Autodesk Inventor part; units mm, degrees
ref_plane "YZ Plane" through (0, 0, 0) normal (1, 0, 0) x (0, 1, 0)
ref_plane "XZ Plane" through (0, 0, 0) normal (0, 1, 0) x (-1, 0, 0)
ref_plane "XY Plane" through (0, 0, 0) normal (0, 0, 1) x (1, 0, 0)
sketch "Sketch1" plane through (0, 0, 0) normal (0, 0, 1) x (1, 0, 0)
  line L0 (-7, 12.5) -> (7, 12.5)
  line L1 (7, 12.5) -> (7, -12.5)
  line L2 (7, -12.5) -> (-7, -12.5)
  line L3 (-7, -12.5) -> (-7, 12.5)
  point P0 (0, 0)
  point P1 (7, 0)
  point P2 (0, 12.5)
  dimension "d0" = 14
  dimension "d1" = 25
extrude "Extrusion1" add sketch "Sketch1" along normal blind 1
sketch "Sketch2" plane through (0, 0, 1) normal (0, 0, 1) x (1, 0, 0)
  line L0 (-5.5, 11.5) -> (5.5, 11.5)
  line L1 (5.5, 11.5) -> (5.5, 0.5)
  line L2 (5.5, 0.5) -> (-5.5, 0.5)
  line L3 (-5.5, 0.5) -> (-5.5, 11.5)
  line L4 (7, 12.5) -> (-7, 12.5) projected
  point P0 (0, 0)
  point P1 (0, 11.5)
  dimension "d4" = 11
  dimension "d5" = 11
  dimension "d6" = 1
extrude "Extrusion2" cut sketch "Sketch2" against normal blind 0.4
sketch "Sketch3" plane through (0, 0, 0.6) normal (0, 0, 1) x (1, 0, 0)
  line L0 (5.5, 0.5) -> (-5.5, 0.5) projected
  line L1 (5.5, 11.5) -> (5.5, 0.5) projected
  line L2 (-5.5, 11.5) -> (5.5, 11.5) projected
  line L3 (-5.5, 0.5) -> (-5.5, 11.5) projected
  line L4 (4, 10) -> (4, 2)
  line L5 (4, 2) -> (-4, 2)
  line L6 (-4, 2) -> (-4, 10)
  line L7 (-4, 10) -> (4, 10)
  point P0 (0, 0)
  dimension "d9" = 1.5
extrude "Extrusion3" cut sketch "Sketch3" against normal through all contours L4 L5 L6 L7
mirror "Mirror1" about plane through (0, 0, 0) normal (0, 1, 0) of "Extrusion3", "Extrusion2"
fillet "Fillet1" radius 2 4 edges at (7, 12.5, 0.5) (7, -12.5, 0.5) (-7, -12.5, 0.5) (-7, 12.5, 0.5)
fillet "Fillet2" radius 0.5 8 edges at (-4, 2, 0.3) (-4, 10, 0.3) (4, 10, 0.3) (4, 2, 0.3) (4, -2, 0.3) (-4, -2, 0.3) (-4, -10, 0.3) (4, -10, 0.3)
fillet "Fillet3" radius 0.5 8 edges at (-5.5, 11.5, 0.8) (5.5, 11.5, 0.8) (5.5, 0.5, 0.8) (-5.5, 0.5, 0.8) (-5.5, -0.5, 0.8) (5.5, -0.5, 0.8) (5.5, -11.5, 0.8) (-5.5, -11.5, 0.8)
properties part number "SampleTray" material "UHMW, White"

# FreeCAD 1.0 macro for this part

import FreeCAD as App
import Part
import Sketcher
from FreeCAD import Vector
Q = App.Units.Quantity


def edges_at(feature, points):
    """Names of the edges that pass closest to the given points."""
    edges = feature.Shape.Edges
    near = lambda p: min(range(len(edges)), key=lambda i: edges[i].distToShape(Part.Vertex(*p))[0])
    return sorted({f"Edge{near(p) + 1}" for p in points})

doc = App.newDocument("Part")
body = doc.addObject("PartDesign::Body", "Body")

# Sketch on XY plane
sketch1 = body.newObject("Sketcher::SketchObject", "Sketch")
sketch1.AttachmentSupport = (doc.getObject("XY_Plane"), [""])
sketch1.MapMode = "FlatFace"
sketch1.addGeometry(Part.LineSegment(Vector(7, 12, 0), Vector(-7, 12, 0)), False)
sketch1.addGeometry(Part.LineSegment(Vector(-7, 12, 0), Vector(-7, -12, 0)), False)
sketch1.addGeometry(Part.LineSegment(Vector(-7, -12, 0), Vector(7, -12, 0)), False)
sketch1.addGeometry(Part.LineSegment(Vector(7, -12, 0), Vector(7, 12, 0)), False)
sketch1.addConstraint(Sketcher.Constraint("Coincident", 0, 2, 1, 1))
sketch1.addConstraint(Sketcher.Constraint("Coincident", 1, 2, 2, 1))
sketch1.addConstraint(Sketcher.Constraint("Coincident", 2, 2, 3, 1))
sketch1.addConstraint(Sketcher.Constraint("Coincident", 3, 2, 0, 1))
sketch1.addConstraint(Sketcher.Constraint("Horizontal", 0))
sketch1.addConstraint(Sketcher.Constraint("Vertical", 1))
sketch1.addConstraint(Sketcher.Constraint("Horizontal", 2))
sketch1.addConstraint(Sketcher.Constraint("Vertical", 3))
sketch1.addConstraint(Sketcher.Constraint("Symmetric", 0, 2, 2, 2, -1, 1))
sketch1.addConstraint(Sketcher.Constraint("DistanceX", 0, 2, 0, 1, Q("14 mm")))
sketch1.addConstraint(Sketcher.Constraint("DistanceY", 1, 2, 1, 1, Q("25 mm")))
pad1 = body.newObject("PartDesign::Pad", "Pad")
pad1.Profile = sketch1
pad1.Length = 1

# Sketch on XY plane
sketch2 = body.newObject("Sketcher::SketchObject", "Sketch001")
sketch2.AttachmentSupport = (doc.getObject("XY_Plane"), [""])
sketch2.MapMode = "FlatFace"
sketch2.AttachmentOffset = App.Placement(Vector(0, 0, 1), App.Rotation())
sketch2.addGeometry(Part.LineSegment(Vector(6, 12, 0), Vector(-6, 12, 0)), False)
sketch2.addGeometry(Part.LineSegment(Vector(-6, 12, 0), Vector(-6, 0, 0)), False)
sketch2.addGeometry(Part.LineSegment(Vector(-6, 0, 0), Vector(6, 0, 0)), False)
sketch2.addGeometry(Part.LineSegment(Vector(6, 0, 0), Vector(6, 12, 0)), False)
sketch2.addConstraint(Sketcher.Constraint("Coincident", 0, 2, 1, 1))
sketch2.addConstraint(Sketcher.Constraint("Coincident", 1, 2, 2, 1))
sketch2.addConstraint(Sketcher.Constraint("Coincident", 2, 2, 3, 1))
sketch2.addConstraint(Sketcher.Constraint("Coincident", 3, 2, 0, 1))
sketch2.addConstraint(Sketcher.Constraint("Horizontal", 0))
sketch2.addConstraint(Sketcher.Constraint("Vertical", 1))
sketch2.addConstraint(Sketcher.Constraint("Horizontal", 2))
sketch2.addConstraint(Sketcher.Constraint("Vertical", 3))
sketch2.addConstraint(Sketcher.Constraint("Equal", 2, 1))
sketch2.addConstraint(Sketcher.Constraint("DistanceX", 0, 2, 0, 1, Q("11 mm")))
sketch2.addConstraint(Sketcher.Constraint("DistanceX", 0, 2, -1, 1, Q("5.5 mm")))
sketch2.addConstraint(Sketcher.Constraint("DistanceY", -1, 1, 0, 2, Q("11.5 mm")))
pocket1 = body.newObject("PartDesign::Pocket", "Pocket")
pocket1.Profile = sketch2
pocket1.Length = 0.4

# Sketch on XY plane
sketch3 = body.newObject("Sketcher::SketchObject", "Sketch002")
sketch3.AttachmentSupport = (doc.getObject("XY_Plane"), [""])
sketch3.MapMode = "FlatFace"
sketch3.AttachmentOffset = App.Placement(Vector(0, 0, 0.6), App.Rotation())
sketch3.addGeometry(Part.LineSegment(Vector(4, 2, 0), Vector(4, 10, 0)), False)
sketch3.addGeometry(Part.LineSegment(Vector(4, 10, 0), Vector(-4, 10, 0)), False)
sketch3.addGeometry(Part.LineSegment(Vector(-4, 10, 0), Vector(-4, 2, 0)), False)
sketch3.addGeometry(Part.LineSegment(Vector(-4, 2, 0), Vector(4, 2, 0)), False)
sketch3.addConstraint(Sketcher.Constraint("Coincident", 0, 2, 1, 1))
sketch3.addConstraint(Sketcher.Constraint("Coincident", 1, 2, 2, 1))
sketch3.addConstraint(Sketcher.Constraint("Coincident", 2, 2, 3, 1))
sketch3.addConstraint(Sketcher.Constraint("Coincident", 3, 2, 0, 1))
sketch3.addConstraint(Sketcher.Constraint("Vertical", 0))
sketch3.addConstraint(Sketcher.Constraint("Horizontal", 1))
sketch3.addConstraint(Sketcher.Constraint("Vertical", 2))
sketch3.addConstraint(Sketcher.Constraint("Horizontal", 3))
sketch3.addConstraint(Sketcher.Constraint("Equal", 3, 0))
sketch3.addConstraint(Sketcher.Constraint("DistanceX", 1, 2, 1, 1, Q("8 mm")))
sketch3.addConstraint(Sketcher.Constraint("DistanceX", -1, 1, 0, 2, Q("4 mm")))
sketch3.addConstraint(Sketcher.Constraint("DistanceY", -1, 1, 0, 2, Q("10 mm")))
pocket2 = body.newObject("PartDesign::Pocket", "Pocket001")
pocket2.Profile = sketch3
pocket2.Type = "ThroughAll"
doc.recompute()

mirrored = body.newObject("PartDesign::Mirrored", "Mirrored")
mirrored.Originals = [pocket2, pocket1]
mirrored.MirrorPlane = (doc.getObject("XZ_Plane"), [""])
body.Tip = mirrored
doc.recompute()

fillet = body.newObject("PartDesign::Fillet", "Fillet")
fillet.Base = (mirrored, edges_at(mirrored, [
    (7, 12.5, 0.5),
    (7, -12.5, 0.5),
    (-7, -12.5, 0.5),
    (-7, 12.5, 0.5),
]))
fillet.Radius = 2
doc.recompute()

fillet2 = body.newObject("PartDesign::Fillet", "Fillet001")
fillet2.Base = (fillet, edges_at(fillet, [
    (-4, 2, 0.3),
    (-4, 10, 0.3),
    (4, 10, 0.3),
    (4, 2, 0.3),
    (4, -2, 0.3),
    (-4, -2, 0.3),
    (-4, -10, 0.3),
    (4, -10, 0.3),
]))
fillet2.Radius = 0.5
doc.recompute()

fillet3 = body.newObject("PartDesign::Fillet", "Fillet002")
fillet3.Base = (fillet2, edges_at(fillet2, [
    (-5.5, 11.5, 0.8),
    (5.5, 11.5, 0.8),
    (5.5, 0.5, 0.8),
    (-5.5, 0.5, 0.8),
    (-5.5, -0.5, 0.8),
    (5.5, -0.5, 0.8),
    (5.5, -11.5, 0.8),
    (-5.5, -11.5, 0.8),
]))
fillet3.Radius = 0.5

doc.recompute()
